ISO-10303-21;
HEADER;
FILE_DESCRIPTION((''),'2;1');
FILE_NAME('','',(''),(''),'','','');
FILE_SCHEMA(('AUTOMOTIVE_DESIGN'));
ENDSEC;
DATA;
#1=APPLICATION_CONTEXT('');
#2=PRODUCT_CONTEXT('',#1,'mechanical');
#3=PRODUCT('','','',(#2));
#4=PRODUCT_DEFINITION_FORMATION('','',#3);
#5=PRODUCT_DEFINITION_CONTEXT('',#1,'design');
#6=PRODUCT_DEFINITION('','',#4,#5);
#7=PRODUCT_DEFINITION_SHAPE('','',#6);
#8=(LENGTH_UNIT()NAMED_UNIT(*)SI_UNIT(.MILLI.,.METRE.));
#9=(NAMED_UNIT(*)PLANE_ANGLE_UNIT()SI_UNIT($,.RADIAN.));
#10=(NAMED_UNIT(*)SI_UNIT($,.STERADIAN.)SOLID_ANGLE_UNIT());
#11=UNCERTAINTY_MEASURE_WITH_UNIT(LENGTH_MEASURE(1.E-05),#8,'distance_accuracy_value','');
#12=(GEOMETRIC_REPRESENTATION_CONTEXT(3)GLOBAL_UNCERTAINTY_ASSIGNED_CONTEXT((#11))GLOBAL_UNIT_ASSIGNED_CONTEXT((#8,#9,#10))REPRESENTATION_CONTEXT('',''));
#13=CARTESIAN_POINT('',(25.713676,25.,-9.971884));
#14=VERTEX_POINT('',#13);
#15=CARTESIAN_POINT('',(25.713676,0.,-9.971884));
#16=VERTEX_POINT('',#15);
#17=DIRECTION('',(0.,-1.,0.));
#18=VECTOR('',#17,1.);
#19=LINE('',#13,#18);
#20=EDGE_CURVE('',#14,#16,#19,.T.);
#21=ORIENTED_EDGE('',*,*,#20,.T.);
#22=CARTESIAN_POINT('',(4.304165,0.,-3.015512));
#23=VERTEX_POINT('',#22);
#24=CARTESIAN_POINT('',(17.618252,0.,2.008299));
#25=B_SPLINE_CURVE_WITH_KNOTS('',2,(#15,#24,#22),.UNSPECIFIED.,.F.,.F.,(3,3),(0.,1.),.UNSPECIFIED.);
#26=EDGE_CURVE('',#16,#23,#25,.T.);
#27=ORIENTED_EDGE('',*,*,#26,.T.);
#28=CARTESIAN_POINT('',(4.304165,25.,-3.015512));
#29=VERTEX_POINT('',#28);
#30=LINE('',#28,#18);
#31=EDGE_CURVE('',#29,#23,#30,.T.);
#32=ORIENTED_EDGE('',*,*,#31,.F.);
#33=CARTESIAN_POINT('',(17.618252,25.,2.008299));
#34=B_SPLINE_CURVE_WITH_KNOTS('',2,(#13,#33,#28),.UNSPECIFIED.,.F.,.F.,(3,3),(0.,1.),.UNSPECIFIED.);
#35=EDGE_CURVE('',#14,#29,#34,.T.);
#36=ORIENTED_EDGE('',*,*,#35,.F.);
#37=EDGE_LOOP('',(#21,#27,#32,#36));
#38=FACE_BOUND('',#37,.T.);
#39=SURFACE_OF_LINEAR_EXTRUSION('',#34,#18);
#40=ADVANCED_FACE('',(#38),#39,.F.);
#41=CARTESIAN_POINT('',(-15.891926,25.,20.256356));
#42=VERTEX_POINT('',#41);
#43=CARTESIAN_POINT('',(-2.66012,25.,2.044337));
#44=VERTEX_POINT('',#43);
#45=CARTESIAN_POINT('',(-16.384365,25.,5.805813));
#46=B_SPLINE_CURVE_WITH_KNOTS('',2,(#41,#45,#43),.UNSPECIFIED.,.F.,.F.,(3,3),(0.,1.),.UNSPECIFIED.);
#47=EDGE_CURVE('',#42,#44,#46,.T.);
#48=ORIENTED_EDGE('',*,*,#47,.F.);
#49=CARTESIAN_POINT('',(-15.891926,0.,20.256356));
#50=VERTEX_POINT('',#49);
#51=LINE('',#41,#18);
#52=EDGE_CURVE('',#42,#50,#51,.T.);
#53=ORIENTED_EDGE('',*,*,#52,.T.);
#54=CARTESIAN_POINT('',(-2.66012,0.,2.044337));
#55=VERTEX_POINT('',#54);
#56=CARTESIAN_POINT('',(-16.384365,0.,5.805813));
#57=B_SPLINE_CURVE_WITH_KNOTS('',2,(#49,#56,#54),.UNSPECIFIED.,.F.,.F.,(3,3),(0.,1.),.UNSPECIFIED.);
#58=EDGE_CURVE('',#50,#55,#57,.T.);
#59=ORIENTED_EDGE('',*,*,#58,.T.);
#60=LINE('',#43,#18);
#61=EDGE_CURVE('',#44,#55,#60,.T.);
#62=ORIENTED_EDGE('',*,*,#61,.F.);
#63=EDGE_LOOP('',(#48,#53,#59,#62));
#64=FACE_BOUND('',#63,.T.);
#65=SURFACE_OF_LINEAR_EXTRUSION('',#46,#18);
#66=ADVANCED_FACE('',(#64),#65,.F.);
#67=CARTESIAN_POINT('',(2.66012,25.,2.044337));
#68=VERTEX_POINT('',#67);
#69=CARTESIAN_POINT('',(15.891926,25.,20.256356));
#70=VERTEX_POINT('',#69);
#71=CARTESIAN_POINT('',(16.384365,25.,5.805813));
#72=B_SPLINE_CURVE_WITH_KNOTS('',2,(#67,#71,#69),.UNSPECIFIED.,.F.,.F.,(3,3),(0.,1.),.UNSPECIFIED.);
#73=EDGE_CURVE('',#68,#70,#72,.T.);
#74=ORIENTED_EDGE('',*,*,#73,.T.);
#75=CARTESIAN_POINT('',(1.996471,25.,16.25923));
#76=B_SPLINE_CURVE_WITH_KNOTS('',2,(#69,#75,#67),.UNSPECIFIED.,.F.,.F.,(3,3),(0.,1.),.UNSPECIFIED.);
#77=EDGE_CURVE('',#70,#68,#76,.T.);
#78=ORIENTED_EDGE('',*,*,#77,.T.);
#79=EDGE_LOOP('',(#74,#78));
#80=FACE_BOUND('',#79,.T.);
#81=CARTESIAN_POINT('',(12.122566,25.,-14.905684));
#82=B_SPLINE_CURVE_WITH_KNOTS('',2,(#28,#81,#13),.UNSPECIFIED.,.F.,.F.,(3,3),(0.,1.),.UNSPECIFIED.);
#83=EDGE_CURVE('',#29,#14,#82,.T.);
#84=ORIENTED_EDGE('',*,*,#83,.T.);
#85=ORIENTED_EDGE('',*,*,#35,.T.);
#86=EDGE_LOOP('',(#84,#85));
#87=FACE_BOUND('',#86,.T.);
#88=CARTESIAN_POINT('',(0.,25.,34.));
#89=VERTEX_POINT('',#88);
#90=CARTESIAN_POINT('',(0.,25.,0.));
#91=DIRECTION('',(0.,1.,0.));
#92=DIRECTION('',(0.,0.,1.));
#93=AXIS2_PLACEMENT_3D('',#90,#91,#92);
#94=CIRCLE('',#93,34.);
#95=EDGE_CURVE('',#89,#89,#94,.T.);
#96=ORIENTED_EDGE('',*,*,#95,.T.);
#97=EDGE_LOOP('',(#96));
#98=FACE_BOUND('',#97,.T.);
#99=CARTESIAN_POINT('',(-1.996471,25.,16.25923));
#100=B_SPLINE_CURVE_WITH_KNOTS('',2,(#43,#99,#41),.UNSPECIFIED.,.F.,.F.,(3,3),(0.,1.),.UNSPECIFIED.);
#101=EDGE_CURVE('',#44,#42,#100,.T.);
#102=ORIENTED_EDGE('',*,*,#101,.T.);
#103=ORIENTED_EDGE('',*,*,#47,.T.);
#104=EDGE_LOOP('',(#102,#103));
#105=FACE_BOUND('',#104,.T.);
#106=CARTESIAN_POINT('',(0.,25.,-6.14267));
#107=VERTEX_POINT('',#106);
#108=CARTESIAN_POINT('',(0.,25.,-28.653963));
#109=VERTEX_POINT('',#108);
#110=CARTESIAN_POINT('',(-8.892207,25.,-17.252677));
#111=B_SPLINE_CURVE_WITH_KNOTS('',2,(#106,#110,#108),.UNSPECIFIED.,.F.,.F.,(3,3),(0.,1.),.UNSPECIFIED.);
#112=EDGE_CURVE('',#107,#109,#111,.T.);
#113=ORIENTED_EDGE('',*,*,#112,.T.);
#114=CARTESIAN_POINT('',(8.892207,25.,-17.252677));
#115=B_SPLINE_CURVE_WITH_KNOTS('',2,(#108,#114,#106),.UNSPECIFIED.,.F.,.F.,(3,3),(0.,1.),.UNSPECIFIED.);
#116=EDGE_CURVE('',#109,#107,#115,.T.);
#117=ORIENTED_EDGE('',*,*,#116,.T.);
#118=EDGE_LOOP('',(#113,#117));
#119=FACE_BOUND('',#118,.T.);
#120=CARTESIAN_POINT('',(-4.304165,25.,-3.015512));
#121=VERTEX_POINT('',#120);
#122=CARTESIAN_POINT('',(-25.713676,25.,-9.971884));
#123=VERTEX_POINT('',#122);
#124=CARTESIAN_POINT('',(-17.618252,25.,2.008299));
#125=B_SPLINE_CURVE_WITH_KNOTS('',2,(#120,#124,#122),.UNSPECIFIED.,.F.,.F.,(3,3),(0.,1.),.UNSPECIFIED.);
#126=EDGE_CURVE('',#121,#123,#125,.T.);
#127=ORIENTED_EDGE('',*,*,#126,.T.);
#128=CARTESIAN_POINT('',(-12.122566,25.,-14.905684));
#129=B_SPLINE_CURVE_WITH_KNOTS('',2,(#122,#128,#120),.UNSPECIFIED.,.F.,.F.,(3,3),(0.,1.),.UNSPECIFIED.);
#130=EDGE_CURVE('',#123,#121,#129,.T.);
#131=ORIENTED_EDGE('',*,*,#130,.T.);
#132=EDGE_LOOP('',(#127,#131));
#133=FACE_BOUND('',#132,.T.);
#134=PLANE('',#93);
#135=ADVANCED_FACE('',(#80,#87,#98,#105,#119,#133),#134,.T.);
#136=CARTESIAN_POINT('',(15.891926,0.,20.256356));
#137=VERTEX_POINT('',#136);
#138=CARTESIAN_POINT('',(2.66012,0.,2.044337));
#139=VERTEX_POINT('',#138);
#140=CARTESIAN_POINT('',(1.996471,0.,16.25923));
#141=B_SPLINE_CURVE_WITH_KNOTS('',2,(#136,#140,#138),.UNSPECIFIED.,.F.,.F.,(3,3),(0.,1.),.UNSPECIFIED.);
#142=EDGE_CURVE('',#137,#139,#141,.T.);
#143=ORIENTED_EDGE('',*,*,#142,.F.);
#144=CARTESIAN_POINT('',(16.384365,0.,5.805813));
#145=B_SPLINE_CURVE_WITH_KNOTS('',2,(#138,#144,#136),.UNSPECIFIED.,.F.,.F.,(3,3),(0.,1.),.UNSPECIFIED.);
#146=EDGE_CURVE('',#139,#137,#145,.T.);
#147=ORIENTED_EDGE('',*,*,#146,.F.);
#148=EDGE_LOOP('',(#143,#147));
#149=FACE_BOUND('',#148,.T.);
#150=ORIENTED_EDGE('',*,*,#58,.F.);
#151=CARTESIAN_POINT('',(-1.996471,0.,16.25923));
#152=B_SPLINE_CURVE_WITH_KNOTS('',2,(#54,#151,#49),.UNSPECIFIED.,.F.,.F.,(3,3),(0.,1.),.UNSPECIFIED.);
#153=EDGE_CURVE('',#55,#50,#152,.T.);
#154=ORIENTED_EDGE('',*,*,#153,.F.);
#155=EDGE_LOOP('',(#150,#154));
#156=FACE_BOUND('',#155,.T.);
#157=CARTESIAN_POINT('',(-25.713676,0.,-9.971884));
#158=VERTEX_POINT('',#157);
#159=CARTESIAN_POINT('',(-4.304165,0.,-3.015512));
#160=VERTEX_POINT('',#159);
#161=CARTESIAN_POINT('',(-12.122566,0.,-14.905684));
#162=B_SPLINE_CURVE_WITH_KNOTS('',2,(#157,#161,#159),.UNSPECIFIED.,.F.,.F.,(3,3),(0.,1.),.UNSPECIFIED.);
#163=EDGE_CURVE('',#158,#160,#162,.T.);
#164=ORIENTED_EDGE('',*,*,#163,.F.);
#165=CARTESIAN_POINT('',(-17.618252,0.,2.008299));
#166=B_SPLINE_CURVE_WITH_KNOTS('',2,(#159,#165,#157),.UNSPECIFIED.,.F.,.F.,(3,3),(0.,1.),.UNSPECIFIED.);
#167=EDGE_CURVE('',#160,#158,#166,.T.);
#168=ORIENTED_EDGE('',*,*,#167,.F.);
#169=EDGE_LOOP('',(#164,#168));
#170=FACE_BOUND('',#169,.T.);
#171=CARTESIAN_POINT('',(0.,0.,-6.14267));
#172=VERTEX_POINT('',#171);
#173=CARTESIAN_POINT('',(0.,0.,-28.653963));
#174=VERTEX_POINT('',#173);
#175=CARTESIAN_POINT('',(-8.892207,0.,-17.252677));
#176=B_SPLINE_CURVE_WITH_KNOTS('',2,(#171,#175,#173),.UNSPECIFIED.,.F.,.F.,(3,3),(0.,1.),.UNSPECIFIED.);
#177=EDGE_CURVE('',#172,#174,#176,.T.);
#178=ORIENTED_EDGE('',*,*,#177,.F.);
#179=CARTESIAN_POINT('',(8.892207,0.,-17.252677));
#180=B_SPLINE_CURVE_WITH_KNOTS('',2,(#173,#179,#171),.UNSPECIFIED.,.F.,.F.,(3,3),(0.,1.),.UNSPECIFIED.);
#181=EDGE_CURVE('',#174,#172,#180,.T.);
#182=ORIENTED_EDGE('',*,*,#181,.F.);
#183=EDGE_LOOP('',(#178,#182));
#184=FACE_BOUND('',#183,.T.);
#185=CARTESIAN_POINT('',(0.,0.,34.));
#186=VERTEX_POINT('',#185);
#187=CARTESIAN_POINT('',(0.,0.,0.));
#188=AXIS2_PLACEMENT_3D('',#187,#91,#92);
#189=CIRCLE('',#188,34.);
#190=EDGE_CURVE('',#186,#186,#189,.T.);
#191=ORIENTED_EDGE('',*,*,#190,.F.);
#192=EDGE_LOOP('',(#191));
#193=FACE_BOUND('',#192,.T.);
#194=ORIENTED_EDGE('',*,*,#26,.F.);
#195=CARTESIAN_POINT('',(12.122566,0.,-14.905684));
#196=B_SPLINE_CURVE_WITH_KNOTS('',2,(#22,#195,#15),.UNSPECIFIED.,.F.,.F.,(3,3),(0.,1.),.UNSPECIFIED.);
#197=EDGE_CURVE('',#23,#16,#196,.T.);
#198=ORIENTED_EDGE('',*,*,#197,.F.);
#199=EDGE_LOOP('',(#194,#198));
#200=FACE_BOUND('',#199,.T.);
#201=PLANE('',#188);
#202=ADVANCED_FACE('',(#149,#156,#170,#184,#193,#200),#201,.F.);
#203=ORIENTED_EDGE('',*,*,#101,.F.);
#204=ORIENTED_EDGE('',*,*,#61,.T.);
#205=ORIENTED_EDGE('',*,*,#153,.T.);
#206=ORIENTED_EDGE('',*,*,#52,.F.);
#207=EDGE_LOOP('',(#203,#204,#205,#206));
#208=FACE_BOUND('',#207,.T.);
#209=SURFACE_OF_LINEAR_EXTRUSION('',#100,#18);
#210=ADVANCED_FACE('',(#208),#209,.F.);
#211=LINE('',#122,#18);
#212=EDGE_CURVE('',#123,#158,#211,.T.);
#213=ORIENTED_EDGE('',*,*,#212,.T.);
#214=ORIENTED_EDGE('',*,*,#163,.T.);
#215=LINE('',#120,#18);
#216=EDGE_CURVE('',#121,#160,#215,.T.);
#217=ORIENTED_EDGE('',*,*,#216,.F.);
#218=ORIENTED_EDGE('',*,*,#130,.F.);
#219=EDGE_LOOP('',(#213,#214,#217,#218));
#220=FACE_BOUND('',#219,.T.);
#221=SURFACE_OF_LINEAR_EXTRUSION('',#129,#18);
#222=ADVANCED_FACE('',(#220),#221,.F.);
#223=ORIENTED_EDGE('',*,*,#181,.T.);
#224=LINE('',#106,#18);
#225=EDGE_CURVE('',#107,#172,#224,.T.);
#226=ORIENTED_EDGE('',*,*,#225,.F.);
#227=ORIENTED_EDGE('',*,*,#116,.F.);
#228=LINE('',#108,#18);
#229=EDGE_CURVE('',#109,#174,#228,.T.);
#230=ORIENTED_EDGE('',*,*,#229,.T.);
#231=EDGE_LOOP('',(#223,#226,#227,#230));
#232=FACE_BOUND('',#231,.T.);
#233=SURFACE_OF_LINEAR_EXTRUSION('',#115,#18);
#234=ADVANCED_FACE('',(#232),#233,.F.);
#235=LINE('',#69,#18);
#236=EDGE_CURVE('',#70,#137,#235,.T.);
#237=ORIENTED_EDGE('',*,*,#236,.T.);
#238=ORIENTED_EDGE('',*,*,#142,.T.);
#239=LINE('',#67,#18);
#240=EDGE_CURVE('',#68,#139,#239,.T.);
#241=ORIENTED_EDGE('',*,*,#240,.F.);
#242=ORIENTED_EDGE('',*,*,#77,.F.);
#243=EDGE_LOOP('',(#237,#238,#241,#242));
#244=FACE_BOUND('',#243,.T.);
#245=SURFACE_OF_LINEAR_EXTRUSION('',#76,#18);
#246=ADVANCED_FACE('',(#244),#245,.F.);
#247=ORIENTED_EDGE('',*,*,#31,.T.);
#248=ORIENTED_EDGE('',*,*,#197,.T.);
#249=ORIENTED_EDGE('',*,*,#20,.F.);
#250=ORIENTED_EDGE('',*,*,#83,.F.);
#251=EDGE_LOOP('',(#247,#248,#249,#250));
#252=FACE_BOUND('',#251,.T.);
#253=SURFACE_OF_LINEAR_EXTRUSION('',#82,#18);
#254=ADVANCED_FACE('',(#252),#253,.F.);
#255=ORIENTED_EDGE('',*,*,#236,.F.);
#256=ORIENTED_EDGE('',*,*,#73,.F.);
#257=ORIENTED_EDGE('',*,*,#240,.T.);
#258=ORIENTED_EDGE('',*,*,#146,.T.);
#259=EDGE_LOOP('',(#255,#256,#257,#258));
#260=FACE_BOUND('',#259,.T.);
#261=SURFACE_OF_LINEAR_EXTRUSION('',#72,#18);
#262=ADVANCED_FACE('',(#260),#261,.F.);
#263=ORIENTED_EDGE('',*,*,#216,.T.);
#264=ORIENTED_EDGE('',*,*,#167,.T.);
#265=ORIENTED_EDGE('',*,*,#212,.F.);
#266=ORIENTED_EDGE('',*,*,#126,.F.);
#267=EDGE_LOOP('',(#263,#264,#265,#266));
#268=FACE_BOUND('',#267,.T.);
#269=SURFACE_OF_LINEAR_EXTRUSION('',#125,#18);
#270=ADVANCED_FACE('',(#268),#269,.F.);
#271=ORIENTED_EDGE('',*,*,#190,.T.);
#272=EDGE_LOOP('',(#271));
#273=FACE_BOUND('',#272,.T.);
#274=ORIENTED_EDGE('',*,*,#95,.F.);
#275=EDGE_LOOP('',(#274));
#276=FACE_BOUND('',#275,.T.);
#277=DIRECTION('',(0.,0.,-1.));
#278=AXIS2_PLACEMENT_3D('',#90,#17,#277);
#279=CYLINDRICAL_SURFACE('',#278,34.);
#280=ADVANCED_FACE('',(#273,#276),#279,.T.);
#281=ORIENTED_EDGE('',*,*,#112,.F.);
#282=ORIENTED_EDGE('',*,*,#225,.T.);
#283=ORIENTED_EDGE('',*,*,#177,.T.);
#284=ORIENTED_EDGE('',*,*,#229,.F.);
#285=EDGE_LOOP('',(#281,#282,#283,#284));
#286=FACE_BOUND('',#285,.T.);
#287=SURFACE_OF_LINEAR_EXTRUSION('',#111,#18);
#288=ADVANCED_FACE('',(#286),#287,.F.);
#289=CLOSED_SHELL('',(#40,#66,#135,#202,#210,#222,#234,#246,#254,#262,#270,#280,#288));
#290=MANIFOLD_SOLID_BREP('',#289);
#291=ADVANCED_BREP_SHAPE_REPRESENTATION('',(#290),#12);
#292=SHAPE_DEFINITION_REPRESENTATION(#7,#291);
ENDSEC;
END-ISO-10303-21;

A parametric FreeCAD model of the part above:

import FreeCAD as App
import Part
import Sketcher

V = App.Vector

doc = App.newDocument("Part")
body = doc.addObject("PartDesign::Body", "Body")

# Sketch on XZ plane
sketch1 = doc.addObject("Sketcher::SketchObject", "Sketch")
body.addObject(sketch1)
sketch1.AttachmentSupport = (doc.XZ_Plane, [""])
sketch1.MapMode = "FlatFace"
sketch1.addGeometry(Part.Circle(V(0, 0, 0), V(0, 0, 1), 34), False)
sketch1.addConstraint(Sketcher.Constraint("Coincident", 0, 3, -1, 1))
sketch1.addConstraint(Sketcher.Constraint("Diameter", 0, 68.0))
pad1 = doc.addObject("PartDesign::Pad", "Pad")
body.addObject(pad1)
pad1.Profile = sketch1
pad1.Length = 25
pad1.Reversed = True

# Sketch on XZ plane
sketch2 = doc.addObject("Sketcher::SketchObject", "Sketch001")
body.addObject(sketch2)
sketch2.AttachmentSupport = (doc.XZ_Plane, [""])
sketch2.MapMode = "FlatFace"
sketch2.addGeometry(Part.BSplineCurve([V(0, -6.14267, 0), V(8.892207, -17.252677, 0), V(0, -28.653963, 0)], [3, 3], [0, 1], False, 2, [1, 1, 1], False), False)
sketch2.addGeometry(Part.BSplineCurve([V(0, -6.14267, 0), V(-8.892207, -17.252677, 0), V(0, -28.653963, 0)], [3, 3], [0, 1], False, 2, [1, 1, 1], False), False)
sketch2.addGeometry(Part.BSplineCurve([V(-4.304165, -3.015512, 0), V(-17.618252, 2.008299, 0), V(-25.713676, -9.971884, 0)], [3, 3], [0, 1], False, 2, [1, 1, 1], False), False)
sketch2.addGeometry(Part.BSplineCurve([V(-4.304165, -3.015512, 0), V(-12.122566, -14.905684, 0), V(-25.713676, -9.971884, 0)], [3, 3], [0, 1], False, 2, [1, 1, 1], False), False)
sketch2.addGeometry(Part.BSplineCurve([V(-2.66012, 2.044337, 0), V(-1.996471, 16.25923, 0), V(-15.891926, 20.256356, 0)], [3, 3], [0, 1], False, 2, [1, 1, 1], False), False)
sketch2.addGeometry(Part.BSplineCurve([V(-2.66012, 2.044337, 0), V(-16.384365, 5.805813, 0), V(-15.891926, 20.256356, 0)], [3, 3], [0, 1], False, 2, [1, 1, 1], False), False)
sketch2.addGeometry(Part.BSplineCurve([V(2.66012, 2.044337, 0), V(16.384365, 5.805813, 0), V(15.891926, 20.256356, 0)], [3, 3], [0, 1], False, 2, [1, 1, 1], False), False)
sketch2.addGeometry(Part.BSplineCurve([V(2.66012, 2.044337, 0), V(1.996471, 16.25923, 0), V(15.891926, 20.256356, 0)], [3, 3], [0, 1], False, 2, [1, 1, 1], False), False)
sketch2.addGeometry(Part.BSplineCurve([V(4.304165, -3.015512, 0), V(12.122566, -14.905684, 0), V(25.713676, -9.971884, 0)], [3, 3], [0, 1], False, 2, [1, 1, 1], False), False)
sketch2.addGeometry(Part.BSplineCurve([V(4.304165, -3.015512, 0), V(17.618252, 2.008299, 0), V(25.713676, -9.971884, 0)], [3, 3], [0, 1], False, 2, [1, 1, 1], False), False)
sketch2.addConstraint(Sketcher.Constraint("Block", 0))
sketch2.addConstraint(Sketcher.Constraint("Block", 1))
sketch2.addConstraint(Sketcher.Constraint("Block", 2))
sketch2.addConstraint(Sketcher.Constraint("Block", 3))
sketch2.addConstraint(Sketcher.Constraint("Block", 4))
sketch2.addConstraint(Sketcher.Constraint("Block", 5))
sketch2.addConstraint(Sketcher.Constraint("Block", 6))
sketch2.addConstraint(Sketcher.Constraint("Block", 7))
sketch2.addConstraint(Sketcher.Constraint("Block", 8))
sketch2.addConstraint(Sketcher.Constraint("Block", 9))
pocket1 = doc.addObject("PartDesign::Pocket", "Pocket")
body.addObject(pocket1)
pocket1.Profile = sketch2
pocket1.Length = 25

doc.recompute()
